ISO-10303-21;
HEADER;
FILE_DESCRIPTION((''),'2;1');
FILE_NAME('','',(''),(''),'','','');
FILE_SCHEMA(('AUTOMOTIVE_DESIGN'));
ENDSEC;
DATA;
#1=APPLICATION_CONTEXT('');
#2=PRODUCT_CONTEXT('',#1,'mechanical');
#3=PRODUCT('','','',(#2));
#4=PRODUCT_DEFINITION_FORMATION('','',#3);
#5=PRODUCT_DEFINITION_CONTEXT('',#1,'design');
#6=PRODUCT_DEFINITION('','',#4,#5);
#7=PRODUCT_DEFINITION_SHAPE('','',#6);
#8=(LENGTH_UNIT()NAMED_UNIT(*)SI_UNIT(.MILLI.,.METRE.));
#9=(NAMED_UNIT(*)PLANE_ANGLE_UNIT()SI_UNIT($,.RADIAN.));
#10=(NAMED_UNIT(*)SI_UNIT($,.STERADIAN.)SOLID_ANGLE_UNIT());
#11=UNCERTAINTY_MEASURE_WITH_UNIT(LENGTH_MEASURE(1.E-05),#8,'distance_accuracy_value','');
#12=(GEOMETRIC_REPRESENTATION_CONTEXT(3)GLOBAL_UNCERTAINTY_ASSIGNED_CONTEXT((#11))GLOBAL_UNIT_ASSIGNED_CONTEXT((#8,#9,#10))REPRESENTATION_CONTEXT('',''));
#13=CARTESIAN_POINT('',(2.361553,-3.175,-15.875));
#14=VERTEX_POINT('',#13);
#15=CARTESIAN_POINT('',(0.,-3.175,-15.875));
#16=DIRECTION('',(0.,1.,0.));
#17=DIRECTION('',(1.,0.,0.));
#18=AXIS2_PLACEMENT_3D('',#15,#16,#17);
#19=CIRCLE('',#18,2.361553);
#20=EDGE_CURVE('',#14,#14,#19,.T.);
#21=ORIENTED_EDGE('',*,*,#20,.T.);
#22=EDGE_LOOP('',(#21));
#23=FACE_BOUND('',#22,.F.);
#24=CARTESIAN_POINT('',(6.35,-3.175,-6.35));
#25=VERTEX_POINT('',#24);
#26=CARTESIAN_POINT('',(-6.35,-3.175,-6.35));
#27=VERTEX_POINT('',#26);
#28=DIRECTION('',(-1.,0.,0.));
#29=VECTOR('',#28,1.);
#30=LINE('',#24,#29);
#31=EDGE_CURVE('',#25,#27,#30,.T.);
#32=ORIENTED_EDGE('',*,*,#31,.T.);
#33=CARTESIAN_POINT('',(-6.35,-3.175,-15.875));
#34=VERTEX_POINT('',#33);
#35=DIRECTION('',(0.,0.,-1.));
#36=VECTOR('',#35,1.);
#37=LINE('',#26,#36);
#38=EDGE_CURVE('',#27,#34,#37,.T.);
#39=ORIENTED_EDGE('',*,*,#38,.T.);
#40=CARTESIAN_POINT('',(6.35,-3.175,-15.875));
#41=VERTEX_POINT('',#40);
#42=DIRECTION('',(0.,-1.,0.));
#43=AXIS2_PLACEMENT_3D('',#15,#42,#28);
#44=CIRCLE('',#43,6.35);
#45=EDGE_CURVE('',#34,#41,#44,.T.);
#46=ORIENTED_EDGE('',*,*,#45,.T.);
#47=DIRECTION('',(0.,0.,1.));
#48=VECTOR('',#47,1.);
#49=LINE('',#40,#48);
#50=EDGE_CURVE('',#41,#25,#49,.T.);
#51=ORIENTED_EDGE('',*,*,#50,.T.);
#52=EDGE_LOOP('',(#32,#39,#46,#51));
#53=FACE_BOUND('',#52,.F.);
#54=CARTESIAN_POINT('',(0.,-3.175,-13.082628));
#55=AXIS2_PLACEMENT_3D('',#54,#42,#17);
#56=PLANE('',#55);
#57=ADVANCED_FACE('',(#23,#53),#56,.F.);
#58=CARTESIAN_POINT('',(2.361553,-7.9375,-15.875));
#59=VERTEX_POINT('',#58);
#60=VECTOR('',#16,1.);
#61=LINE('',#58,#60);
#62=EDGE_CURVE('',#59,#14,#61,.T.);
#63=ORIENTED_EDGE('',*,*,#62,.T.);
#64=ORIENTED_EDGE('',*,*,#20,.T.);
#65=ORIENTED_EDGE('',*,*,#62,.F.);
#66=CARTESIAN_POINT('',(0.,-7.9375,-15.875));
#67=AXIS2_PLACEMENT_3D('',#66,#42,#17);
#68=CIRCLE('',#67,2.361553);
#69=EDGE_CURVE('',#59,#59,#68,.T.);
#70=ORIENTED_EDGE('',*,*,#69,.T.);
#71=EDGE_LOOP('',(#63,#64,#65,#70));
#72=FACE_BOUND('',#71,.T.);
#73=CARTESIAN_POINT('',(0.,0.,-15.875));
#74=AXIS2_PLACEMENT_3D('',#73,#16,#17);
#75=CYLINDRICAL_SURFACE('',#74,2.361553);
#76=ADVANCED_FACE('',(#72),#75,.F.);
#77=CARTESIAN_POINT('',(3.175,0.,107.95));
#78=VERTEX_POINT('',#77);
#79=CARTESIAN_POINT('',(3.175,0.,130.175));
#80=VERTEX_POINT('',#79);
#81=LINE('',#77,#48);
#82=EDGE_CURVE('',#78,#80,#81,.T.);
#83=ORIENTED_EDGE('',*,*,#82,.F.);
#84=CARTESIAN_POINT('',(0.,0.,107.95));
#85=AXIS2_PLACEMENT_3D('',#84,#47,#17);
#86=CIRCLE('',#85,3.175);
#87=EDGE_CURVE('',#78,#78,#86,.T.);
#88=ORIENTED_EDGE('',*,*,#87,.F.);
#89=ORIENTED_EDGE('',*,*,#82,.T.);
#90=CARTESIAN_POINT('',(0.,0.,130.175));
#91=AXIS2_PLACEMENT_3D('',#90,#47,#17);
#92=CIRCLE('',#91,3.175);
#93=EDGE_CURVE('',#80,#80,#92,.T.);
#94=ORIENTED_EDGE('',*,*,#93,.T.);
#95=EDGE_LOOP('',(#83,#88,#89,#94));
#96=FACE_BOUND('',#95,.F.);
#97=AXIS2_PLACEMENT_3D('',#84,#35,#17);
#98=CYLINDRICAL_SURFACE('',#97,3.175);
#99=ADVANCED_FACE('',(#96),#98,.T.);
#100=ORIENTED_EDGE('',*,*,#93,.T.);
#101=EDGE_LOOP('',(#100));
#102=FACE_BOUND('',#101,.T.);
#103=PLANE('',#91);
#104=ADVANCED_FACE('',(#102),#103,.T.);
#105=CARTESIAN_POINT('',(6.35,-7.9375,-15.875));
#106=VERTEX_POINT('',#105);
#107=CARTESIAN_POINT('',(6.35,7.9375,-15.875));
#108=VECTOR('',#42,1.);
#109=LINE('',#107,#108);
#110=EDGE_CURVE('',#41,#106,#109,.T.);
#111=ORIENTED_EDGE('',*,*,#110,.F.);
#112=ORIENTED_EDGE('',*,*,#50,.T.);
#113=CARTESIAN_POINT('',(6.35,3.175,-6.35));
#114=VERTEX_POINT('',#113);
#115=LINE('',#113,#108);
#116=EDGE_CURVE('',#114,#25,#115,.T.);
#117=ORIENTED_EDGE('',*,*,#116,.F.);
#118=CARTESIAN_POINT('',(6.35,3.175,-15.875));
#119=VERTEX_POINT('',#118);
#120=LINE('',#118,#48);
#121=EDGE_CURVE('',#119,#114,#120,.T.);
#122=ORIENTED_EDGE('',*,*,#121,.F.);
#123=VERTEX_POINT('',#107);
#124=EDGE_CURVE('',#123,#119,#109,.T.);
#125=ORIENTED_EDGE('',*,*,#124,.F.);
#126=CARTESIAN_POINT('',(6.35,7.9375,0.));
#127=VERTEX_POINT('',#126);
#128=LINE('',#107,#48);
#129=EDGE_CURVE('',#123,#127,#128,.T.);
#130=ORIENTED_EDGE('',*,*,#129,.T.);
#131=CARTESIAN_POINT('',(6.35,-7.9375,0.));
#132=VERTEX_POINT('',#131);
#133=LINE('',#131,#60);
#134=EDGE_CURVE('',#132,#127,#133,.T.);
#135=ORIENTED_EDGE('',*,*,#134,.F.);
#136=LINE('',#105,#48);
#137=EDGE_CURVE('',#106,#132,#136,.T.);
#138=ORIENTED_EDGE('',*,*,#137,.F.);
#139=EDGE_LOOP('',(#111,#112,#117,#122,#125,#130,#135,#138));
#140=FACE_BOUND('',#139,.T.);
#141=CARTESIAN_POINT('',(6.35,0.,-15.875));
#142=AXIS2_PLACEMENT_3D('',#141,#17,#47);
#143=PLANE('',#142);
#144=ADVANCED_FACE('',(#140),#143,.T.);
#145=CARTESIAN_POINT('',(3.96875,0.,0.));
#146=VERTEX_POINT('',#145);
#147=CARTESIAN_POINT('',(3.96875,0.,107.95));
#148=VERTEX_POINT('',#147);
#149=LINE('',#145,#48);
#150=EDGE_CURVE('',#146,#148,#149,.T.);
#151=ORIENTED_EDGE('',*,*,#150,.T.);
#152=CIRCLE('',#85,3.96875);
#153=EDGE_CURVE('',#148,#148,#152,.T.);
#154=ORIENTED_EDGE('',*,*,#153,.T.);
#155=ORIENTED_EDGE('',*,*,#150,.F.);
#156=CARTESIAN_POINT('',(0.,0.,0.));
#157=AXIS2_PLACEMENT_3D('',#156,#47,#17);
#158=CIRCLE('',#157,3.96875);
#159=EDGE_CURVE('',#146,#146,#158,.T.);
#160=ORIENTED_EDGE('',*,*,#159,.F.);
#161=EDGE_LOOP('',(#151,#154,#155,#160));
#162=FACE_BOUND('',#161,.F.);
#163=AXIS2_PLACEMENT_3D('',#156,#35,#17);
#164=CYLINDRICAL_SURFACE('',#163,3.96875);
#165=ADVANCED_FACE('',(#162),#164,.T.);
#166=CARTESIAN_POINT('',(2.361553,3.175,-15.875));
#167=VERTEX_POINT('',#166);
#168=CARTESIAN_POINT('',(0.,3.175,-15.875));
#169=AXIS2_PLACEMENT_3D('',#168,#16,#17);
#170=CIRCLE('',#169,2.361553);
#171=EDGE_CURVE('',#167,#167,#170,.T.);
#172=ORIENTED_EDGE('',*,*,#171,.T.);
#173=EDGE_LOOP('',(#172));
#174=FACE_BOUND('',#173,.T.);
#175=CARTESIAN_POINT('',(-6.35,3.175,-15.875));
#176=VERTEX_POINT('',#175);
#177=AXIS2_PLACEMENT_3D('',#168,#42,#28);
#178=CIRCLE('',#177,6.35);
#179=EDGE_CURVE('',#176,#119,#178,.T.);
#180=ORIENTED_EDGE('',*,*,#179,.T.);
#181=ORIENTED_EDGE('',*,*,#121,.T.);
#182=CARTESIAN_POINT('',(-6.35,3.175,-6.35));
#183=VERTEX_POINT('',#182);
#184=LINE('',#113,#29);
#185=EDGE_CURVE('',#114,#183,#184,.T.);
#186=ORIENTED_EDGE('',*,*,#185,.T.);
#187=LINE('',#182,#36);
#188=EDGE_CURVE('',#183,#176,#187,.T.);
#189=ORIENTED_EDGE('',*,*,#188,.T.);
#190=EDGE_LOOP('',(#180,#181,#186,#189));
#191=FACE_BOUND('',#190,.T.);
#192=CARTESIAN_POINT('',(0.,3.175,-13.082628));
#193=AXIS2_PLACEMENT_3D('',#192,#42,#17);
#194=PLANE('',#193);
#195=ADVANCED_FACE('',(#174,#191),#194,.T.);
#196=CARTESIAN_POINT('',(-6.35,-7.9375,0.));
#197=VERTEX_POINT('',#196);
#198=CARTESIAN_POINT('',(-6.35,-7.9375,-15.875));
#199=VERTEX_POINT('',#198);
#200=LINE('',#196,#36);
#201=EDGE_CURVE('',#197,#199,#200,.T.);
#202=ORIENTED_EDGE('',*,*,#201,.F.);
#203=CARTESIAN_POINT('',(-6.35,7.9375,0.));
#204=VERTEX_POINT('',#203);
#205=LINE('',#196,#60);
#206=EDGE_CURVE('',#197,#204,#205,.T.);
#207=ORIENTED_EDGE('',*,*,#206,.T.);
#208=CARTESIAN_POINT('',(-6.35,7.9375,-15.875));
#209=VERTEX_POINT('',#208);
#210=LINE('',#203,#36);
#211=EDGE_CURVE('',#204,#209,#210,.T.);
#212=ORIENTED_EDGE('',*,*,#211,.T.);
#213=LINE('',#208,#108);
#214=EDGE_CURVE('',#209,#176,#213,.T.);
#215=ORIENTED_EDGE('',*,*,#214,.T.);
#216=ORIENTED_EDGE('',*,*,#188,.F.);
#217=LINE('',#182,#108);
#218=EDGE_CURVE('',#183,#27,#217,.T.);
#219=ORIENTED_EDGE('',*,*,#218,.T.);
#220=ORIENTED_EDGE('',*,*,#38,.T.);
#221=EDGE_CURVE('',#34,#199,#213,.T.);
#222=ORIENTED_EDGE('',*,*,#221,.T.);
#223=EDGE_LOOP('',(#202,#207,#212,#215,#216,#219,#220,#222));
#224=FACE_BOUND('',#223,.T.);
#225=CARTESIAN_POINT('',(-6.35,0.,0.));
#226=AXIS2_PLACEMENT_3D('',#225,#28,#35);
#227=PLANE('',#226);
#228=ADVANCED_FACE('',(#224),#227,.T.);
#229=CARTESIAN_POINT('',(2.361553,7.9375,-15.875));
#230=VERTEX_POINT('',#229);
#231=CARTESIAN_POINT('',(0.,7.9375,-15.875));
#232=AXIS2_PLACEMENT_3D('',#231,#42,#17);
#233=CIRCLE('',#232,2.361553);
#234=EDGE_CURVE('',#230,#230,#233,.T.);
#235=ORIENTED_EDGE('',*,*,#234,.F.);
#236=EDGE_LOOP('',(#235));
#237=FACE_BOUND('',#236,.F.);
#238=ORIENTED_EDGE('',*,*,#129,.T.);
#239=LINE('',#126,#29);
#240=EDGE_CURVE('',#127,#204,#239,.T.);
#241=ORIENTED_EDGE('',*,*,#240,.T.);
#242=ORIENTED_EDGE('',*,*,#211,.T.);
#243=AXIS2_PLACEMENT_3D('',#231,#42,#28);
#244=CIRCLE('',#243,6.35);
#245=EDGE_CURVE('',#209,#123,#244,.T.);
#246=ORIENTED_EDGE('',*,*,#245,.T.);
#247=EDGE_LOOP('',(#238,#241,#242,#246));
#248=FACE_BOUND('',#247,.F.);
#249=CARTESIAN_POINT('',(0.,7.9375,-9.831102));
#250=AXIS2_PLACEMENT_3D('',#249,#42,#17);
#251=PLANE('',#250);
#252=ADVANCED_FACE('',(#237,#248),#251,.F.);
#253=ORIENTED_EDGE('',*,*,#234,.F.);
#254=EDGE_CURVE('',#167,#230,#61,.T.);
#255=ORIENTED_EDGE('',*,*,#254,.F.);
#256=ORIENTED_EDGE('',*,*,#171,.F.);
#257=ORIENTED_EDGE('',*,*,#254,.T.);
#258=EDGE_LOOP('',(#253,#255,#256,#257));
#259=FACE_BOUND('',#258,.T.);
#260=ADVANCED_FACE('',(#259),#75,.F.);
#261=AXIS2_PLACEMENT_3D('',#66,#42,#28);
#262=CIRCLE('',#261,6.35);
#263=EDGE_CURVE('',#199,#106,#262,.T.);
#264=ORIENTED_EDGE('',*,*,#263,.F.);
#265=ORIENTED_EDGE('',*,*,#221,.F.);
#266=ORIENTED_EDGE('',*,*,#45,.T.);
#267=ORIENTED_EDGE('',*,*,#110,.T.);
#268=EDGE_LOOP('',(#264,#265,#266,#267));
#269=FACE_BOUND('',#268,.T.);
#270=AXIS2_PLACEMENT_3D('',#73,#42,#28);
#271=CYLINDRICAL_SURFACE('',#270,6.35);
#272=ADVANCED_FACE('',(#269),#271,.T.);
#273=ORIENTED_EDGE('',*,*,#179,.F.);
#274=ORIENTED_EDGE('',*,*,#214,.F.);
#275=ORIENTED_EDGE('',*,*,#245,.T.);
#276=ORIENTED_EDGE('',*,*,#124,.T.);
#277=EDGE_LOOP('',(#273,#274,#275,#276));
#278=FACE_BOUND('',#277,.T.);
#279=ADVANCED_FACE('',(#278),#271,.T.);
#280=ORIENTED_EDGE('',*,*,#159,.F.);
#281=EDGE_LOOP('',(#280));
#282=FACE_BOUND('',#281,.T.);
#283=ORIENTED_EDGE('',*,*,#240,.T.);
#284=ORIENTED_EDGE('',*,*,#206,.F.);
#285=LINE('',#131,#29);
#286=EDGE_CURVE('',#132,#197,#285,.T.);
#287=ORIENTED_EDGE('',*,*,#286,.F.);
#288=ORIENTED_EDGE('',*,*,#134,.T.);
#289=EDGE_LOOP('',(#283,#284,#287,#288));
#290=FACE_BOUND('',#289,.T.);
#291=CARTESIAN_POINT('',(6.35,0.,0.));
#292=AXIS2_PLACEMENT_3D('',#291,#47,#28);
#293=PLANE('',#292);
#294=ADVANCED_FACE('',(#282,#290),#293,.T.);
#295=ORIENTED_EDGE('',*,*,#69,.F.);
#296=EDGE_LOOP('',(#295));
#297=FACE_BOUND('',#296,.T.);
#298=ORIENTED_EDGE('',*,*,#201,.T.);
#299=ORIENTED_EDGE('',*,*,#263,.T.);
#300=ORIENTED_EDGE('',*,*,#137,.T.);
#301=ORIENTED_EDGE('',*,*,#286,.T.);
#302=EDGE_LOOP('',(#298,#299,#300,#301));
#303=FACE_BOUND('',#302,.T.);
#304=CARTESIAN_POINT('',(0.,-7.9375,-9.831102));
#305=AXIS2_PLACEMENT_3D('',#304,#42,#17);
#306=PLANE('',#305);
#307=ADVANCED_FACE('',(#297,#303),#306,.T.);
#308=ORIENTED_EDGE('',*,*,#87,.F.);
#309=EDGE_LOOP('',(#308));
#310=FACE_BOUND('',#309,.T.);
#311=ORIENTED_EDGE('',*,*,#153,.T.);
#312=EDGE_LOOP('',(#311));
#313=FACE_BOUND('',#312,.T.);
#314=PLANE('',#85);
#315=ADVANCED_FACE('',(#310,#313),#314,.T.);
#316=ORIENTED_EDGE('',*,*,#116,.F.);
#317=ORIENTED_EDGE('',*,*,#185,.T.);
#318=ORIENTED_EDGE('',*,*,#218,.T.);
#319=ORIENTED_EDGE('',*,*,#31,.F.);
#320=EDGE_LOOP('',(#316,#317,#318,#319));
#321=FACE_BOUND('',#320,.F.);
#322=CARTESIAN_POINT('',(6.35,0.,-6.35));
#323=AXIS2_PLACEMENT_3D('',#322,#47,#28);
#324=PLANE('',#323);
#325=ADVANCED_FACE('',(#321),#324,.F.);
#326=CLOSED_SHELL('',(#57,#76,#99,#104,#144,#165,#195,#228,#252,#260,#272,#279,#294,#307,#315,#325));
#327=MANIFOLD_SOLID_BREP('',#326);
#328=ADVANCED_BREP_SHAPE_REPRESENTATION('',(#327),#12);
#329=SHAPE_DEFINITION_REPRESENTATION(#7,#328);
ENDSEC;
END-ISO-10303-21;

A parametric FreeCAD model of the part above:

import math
import FreeCAD as App
import Part
import Sketcher

V = App.Vector
Q = App.Units.Quantity

doc = App.newDocument("Part")
params = doc.addObject("Spreadsheet::Sheet", "Params")
for row, (alias, value) in enumerate([
    ("sketch1_diameter", "0.3125 in"),
    ("pad1_length", "4.25 in"),
    ("sketch2_diameter", "0.25 in"),
    ("pad2_length", "0.875 in"),
    ("sketch3_radius", "0.25 in"),
    ("sketch3_height", "0.625 in"),
    ("pad3_length", "0.625 in"),
    ("sketch4_radius", "0.25 in"),
    ("sketch4_height", "0.375 in"),
    ("pocket1_length", "0.25 in"),
], start=1):
    params.set(f"A{row}", alias)
    params.set(f"B{row}", "=" + value)
    params.setAlias(f"B{row}", alias)

body = doc.addObject("PartDesign::Body", "Body")

# Sketch on XY plane
sketch1 = body.newObject("Sketcher::SketchObject", "Sketch")
sketch1.AttachmentSupport = (doc.getObject("XY_Plane"), [""])
sketch1.MapMode = "FlatFace"
sketch1.addGeometry(Part.Circle(V(0, 0, 0), V(0, 0, 1), 3.96875), False)
sketch1.addConstraint([
    Sketcher.Constraint("Coincident", 0, 3, -1, 1),
    Sketcher.Constraint("Diameter", 0, Q("0.3125 in")),
])
sketch1.setExpression("Constraints[1]", "Params.sketch1_diameter")
pad1 = body.newObject("PartDesign::Pad", "Pad")
pad1.Profile = sketch1
pad1.setExpression("Length", "Params.pad1_length")

# Sketch on XY plane
sketch2 = body.newObject("Sketcher::SketchObject", "Sketch001")
sketch2.AttachmentSupport = (doc.getObject("XY_Plane"), [""])
sketch2.MapMode = "FlatFace"
sketch2.AttachmentOffset = App.Placement(V(0, 0, 4.25 * 25.4), App.Rotation())
sketch2.addGeometry(Part.Circle(V(0, 0, 0), V(0, 0, 1), 3.175), False)
sketch2.addConstraint([
    Sketcher.Constraint("Coincident", 0, 3, -1, 1),
    Sketcher.Constraint("Diameter", 0, Q("0.25 in")),
])
sketch2.setExpression("Constraints[1]", "Params.sketch2_diameter")
pad2 = body.newObject("PartDesign::Pad", "Pad001")
pad2.Profile = sketch2
pad2.setExpression("Length", "Params.pad2_length")

# Sketch on XZ plane
sketch3 = body.newObject("Sketcher::SketchObject", "Sketch002")
sketch3.AttachmentSupport = (doc.getObject("XZ_Plane"), [""])
sketch3.MapMode = "FlatFace"
sketch3.addGeometry([
    Part.LineSegment(V(-6.35, 0, 0), V(-6.35, -15.875, 0)),  # 0
    Part.ArcOfCircle(Part.Circle(V(0, -15.875, 0), V(0, 0, 1), 6.35), math.radians(180), math.radians(360)),  # 1
    Part.LineSegment(V(6.35, -15.875, 0), V(6.35, 0, 0)),  # 2
    Part.LineSegment(V(6.35, 0, 0), V(-6.35, 0, 0)),  # 3
    Part.Circle(V(0, -15.875, 0), V(0, 0, 1), 2.361553),  # 4
], False)
sketch3.addConstraint([
    Sketcher.Constraint("Tangent", 0, 2, 1, 1),
    Sketcher.Constraint("Tangent", 1, 2, 2, 1),
    Sketcher.Constraint("Coincident", 2, 2, 3, 1),
    Sketcher.Constraint("Coincident", 3, 2, 0, 1),
    Sketcher.Constraint("Vertical", 0),
    Sketcher.Constraint("Vertical", 2),
    Sketcher.Constraint("Horizontal", 3),
    Sketcher.Constraint("Coincident", 4, 3, 1, 3),
    Sketcher.Constraint("Symmetric", 2, 2, 3, 2, -1, 1),
    Sketcher.Constraint("Radius", 1, Q("0.25 in")),
    Sketcher.Constraint("DistanceY", 0, 2, 0, 1, Q("0.625 in")),
    Sketcher.Constraint("Diameter", 4, Q("4.723106 mm")),
])
sketch3.setExpression("Constraints[9]", "Params.sketch3_radius")
sketch3.setExpression("Constraints[10]", "Params.sketch3_height")
pad3 = body.newObject("PartDesign::Pad", "Pad002")
pad3.Profile = sketch3
pad3.setExpression("Length", "Params.pad3_length")
pad3.Midplane = True

# Sketch on XZ plane
sketch4 = body.newObject("Sketcher::SketchObject", "Sketch003")
sketch4.AttachmentSupport = (doc.getObject("XZ_Plane"), [""])
sketch4.MapMode = "FlatFace"
sketch4.addGeometry([
    Part.LineSegment(V(6.35, -15.875, 0), V(6.35, -6.35, 0)),
    Part.LineSegment(V(6.35, -6.35, 0), V(-6.35, -6.35, 0)),
    Part.LineSegment(V(-6.35, -6.35, 0), V(-6.35, -15.875, 0)),
    Part.ArcOfCircle(Part.Circle(V(0, -15.875, 0), V(0, 0, 1), 6.35), math.radians(180), math.radians(360)),
], False)
sketch4.addConstraint([
    Sketcher.Constraint("Coincident", 0, 2, 1, 1),
    Sketcher.Constraint("Coincident", 1, 2, 2, 1),
    Sketcher.Constraint("Tangent", 2, 2, 3, 1),
    Sketcher.Constraint("Tangent", 3, 2, 0, 1),
    Sketcher.Constraint("Vertical", 0),
    Sketcher.Constraint("Horizontal", 1),
    Sketcher.Constraint("Vertical", 2),
    Sketcher.Constraint("PointOnObject", 3, 3, -2),
    Sketcher.Constraint("Radius", 3, Q("0.25 in")),
    Sketcher.Constraint("DistanceY", 0, 1, 0, 2, Q("0.375 in")),
    Sketcher.Constraint("DistanceY", 0, 2, -1, 1, Q("0.25 in")),
])
sketch4.setExpression("Constraints[8]", "Params.sketch4_radius")
sketch4.setExpression("Constraints[9]", "Params.sketch4_height")
pocket1 = body.newObject("PartDesign::Pocket", "Pocket")
pocket1.Profile = sketch4
pocket1.setExpression("Length", "Params.pocket1_length")
pocket1.Midplane = True

doc.recompute()
